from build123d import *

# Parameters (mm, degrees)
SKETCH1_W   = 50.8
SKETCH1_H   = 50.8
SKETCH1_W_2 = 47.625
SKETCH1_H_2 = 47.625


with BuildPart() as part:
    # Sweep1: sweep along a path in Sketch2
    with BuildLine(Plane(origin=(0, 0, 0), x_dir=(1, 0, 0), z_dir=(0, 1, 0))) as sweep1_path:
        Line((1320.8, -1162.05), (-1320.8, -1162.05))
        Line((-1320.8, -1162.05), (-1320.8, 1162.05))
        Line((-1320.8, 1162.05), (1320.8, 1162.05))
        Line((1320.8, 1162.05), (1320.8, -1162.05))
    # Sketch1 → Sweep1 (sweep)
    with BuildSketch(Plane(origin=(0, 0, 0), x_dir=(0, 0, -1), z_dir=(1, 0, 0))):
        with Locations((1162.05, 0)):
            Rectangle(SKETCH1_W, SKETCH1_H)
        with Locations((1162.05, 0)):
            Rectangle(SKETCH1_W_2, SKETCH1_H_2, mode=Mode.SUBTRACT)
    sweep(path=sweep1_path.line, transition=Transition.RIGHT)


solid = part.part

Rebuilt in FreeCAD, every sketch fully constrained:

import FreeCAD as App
import Part
import Sketcher

V = App.Vector
Q = App.Units.Quantity


def add_polygon(sketch, points):
    """Adds a closed chain of lines whose ends are joined by coincident constraints."""
    first, n = sketch.GeometryCount, len(points)
    for a, b in zip(points, points[1:] + points[:1]):
        sketch.addGeometry(Part.LineSegment(App.Vector(*a, 0), App.Vector(*b, 0)), False)
    for i in range(n):
        sketch.addConstraint(Sketcher.Constraint("Coincident", first + i, 2, first + (i + 1) % n, 1))

doc = App.newDocument("Part")
body = doc.addObject("PartDesign::Body", "Body")

# Sketch on YZ plane
sketch1 = body.newObject("Sketcher::SketchObject", "Sketch")
sketch1.AttachmentSupport = (doc.getObject("YZ_Plane"), [""])
sketch1.MapMode = "FlatFace"
add_polygon(sketch1, [(25, -1137), (-25, -1137), (-25, -1187), (25, -1187)])  # lines 0-3
add_polygon(sketch1, [(-24, -1186), (-24, -1138), (24, -1138), (24, -1186)])  # lines 4-7
sketch1.addConstraint([
    Sketcher.Constraint("Horizontal", 0),
    Sketcher.Constraint("Vertical", 1),
    Sketcher.Constraint("Horizontal", 2),
    Sketcher.Constraint("Vertical", 3),
    Sketcher.Constraint("Vertical", 4),
    Sketcher.Constraint("Horizontal", 5),
    Sketcher.Constraint("Vertical", 6),
    Sketcher.Constraint("Horizontal", 7),
    Sketcher.Constraint("Equal", 2, 1),
    Sketcher.Constraint("Equal", 7, 4),
    Sketcher.Constraint("DistanceX", 0, 2, 0, 1, Q("2 in")),
    Sketcher.Constraint("DistanceX", 0, 2, -1, 1, Q("1 in")),
    Sketcher.Constraint("DistanceX", 5, 1, 5, 2, Q("1.875 in")),
    Sketcher.Constraint("DistanceY", 0, 2, -1, 1, Q("44.75 in")),
    Sketcher.Constraint("DistanceX", 4, 2, -1, 1, Q("0.9375 in")),
    Sketcher.Constraint("DistanceY", 4, 2, -1, 1, Q("44.8125 in")),
])

# Sketch on XZ plane
sketch2 = body.newObject("Sketcher::SketchObject", "Sketch001")
sketch2.AttachmentSupport = (doc.getObject("XZ_Plane"), [""])
sketch2.MapMode = "FlatFace"
add_polygon(sketch2, [(1321, 1162), (-1321, 1162), (-1321, -1162), (1321, -1162)])  # lines 0-3
sketch2.addConstraint([
    Sketcher.Constraint("Horizontal", 0),
    Sketcher.Constraint("Vertical", 1),
    Sketcher.Constraint("Horizontal", 2),
    Sketcher.Constraint("Vertical", 3),
    Sketcher.Constraint("Symmetric", 0, 2, 2, 2, -1, 1),
    Sketcher.Constraint("DistanceX", 0, 2, 0, 1, Q("104 in")),
    Sketcher.Constraint("DistanceY", 1, 2, 1, 1, Q("91.5 in")),
])
doc.recompute()

additivepipe = body.newObject("PartDesign::AdditivePipe", "AdditivePipe")
additivepipe.Profile = sketch1
additivepipe.Spine = (sketch2, ["Edge1", "Edge2", "Edge3", "Edge4"])
additivepipe.Transition = "Right corner"

doc.recompute()
